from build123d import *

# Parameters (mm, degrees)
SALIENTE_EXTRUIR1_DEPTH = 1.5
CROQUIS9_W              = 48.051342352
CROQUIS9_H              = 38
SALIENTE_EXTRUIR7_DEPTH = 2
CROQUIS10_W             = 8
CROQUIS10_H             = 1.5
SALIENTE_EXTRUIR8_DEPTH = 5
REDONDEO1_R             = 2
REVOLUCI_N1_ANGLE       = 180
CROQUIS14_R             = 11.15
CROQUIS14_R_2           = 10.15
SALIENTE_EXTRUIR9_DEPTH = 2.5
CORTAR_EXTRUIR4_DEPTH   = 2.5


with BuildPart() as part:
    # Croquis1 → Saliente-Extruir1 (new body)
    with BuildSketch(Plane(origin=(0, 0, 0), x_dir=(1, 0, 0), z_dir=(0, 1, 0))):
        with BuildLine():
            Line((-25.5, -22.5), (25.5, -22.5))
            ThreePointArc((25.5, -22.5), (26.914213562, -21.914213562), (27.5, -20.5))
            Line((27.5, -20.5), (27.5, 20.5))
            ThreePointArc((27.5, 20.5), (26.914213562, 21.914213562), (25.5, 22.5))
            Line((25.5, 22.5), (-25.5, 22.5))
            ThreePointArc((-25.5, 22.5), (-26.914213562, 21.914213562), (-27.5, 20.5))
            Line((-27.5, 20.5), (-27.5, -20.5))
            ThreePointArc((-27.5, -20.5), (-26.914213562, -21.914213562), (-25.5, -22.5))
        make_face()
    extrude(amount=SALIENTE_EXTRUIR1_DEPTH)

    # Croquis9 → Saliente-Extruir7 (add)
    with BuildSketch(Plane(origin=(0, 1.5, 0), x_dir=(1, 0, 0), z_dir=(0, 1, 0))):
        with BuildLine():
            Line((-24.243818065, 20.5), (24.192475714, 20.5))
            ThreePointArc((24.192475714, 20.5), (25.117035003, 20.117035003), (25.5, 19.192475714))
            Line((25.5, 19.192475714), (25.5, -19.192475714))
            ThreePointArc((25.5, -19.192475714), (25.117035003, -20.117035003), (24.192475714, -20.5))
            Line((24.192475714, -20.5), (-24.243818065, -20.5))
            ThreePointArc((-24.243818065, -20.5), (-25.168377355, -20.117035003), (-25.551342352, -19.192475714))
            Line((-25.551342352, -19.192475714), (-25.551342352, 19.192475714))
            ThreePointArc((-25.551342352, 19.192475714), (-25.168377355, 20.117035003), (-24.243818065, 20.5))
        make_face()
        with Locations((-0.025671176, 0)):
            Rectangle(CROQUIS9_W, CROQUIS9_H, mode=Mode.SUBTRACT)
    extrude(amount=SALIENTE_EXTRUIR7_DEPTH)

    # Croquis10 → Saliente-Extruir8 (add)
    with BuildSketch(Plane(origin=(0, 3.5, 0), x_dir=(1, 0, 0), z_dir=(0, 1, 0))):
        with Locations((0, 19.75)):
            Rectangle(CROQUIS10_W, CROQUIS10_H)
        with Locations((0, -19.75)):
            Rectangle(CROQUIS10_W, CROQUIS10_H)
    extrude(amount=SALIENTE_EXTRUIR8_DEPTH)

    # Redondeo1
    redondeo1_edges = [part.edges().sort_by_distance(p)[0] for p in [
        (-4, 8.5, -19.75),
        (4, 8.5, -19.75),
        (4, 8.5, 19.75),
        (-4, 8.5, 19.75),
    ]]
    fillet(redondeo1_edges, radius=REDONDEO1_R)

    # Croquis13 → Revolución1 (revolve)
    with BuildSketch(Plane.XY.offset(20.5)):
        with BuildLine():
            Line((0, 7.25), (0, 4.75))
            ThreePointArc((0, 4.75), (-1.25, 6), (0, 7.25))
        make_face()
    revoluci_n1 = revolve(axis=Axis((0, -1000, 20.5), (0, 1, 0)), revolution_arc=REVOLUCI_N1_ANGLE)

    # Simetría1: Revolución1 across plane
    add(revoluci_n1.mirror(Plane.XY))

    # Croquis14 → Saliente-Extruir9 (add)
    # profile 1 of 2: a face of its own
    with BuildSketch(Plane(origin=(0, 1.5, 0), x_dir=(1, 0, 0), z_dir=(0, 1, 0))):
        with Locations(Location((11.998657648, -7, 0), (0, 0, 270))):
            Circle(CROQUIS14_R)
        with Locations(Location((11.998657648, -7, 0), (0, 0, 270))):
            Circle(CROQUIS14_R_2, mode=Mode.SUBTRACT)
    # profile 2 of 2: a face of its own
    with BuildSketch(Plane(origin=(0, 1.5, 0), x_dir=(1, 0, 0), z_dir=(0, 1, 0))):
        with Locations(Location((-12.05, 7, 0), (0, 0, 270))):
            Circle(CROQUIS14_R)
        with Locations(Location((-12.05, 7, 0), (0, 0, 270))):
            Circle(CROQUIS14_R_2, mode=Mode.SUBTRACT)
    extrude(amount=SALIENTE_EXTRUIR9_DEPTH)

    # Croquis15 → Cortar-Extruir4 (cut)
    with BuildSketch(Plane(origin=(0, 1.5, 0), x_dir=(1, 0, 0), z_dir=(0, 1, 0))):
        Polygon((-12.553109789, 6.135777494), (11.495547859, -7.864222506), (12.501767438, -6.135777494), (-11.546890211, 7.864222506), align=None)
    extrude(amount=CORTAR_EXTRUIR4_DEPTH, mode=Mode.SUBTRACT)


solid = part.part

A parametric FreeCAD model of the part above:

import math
import FreeCAD as App
import Part
import Sketcher
from FreeCAD import Vector
Q = App.Units.Quantity


def edges_at(feature, points):
    """Names of the edges that pass closest to the given points."""
    edges = feature.Shape.Edges
    near = lambda p: min(range(len(edges)), key=lambda i: edges[i].distToShape(Part.Vertex(*p))[0])
    return sorted({f"Edge{near(p) + 1}" for p in points})

doc = App.newDocument("Part")
body = doc.addObject("PartDesign::Body", "Body")

# Sketch on XZ plane
sketch1 = body.newObject("Sketcher::SketchObject", "Sketch")
sketch1.AttachmentSupport = (doc.getObject("XZ_Plane"), [""])
sketch1.MapMode = "FlatFace"
sketch1.addGeometry([
    Part.LineSegment(Vector(-25.5, 22.5, 0), Vector(25.5, 22.5, 0)),  # 0
    Part.ArcOfCircle(Part.Circle(Vector(25.5, 20.5, 0), Vector(0, 0, 1), 2), math.radians(0), math.radians(90)),  # 1
    Part.LineSegment(Vector(27.5, 20.5, 0), Vector(27.5, -20.5, 0)),  # 2
    Part.ArcOfCircle(Part.Circle(Vector(25.5, -20.5, 0), Vector(0, 0, 1), 2), math.radians(-90), math.radians(0)),  # 3
    Part.LineSegment(Vector(25.5, -22.5, 0), Vector(-25.5, -22.5, 0)),  # 4
    Part.ArcOfCircle(Part.Circle(Vector(-25.5, -20.5, 0), Vector(0, 0, 1), 2), math.radians(-180), math.radians(-90)),  # 5
    Part.LineSegment(Vector(-27.5, -20.5, 0), Vector(-27.5, 20.5, 0)),  # 6
    Part.ArcOfCircle(Part.Circle(Vector(-25.5, 20.5, 0), Vector(0, 0, 1), 2), math.radians(90), math.radians(180)),  # 7
], False)
sketch1.addConstraint([
    Sketcher.Constraint("Tangent", 0, 2, 1, 2),
    Sketcher.Constraint("Tangent", 1, 1, 2, 1),
    Sketcher.Constraint("Tangent", 2, 2, 3, 2),
    Sketcher.Constraint("Tangent", 3, 1, 4, 1),
    Sketcher.Constraint("Tangent", 4, 2, 5, 2),
    Sketcher.Constraint("Tangent", 5, 1, 6, 1),
    Sketcher.Constraint("Tangent", 6, 2, 7, 2),
    Sketcher.Constraint("Tangent", 7, 1, 0, 1),
    Sketcher.Constraint("Horizontal", 0),
    Sketcher.Constraint("Vertical", 2),
    Sketcher.Constraint("Horizontal", 4),
    Sketcher.Constraint("Vertical", 6),
    Sketcher.Constraint("Equal", 1, 3),
    Sketcher.Constraint("Equal", 3, 5),
    Sketcher.Constraint("Equal", 5, 7),
    Sketcher.Constraint("Symmetric", 1, 3, 5, 3, -1, 1),
    Sketcher.Constraint("Radius", 1, Q("2 mm")),
    Sketcher.Constraint("DistanceX", 0, 1, 0, 2, Q("51 mm")),
    Sketcher.Constraint("DistanceY", 2, 2, 2, 1, Q("41 mm")),
])
pad1 = body.newObject("PartDesign::Pad", "Pad")
pad1.Profile = sketch1
pad1.Length = 1.5
pad1.Reversed = True

# Sketch on XZ plane
sketch2 = body.newObject("Sketcher::SketchObject", "Sketch001")
sketch2.AttachmentSupport = (doc.getObject("XZ_Plane"), [""])
sketch2.MapMode = "FlatFace"
sketch2.AttachmentOffset = App.Placement(Vector(0, 0, -1.5), App.Rotation())
sketch2.addGeometry([
    Part.LineSegment(Vector(24.2, -20.5, 0), Vector(-24.2, -20.5, 0)),  # 0
    Part.ArcOfCircle(Part.Circle(Vector(-24.2, -19.2, 0), Vector(0, 0, 1), 1.3), math.radians(-180), math.radians(-90)),  # 1
    Part.LineSegment(Vector(-25.6, -19.2, 0), Vector(-25.6, 19.2, 0)),  # 2
    Part.ArcOfCircle(Part.Circle(Vector(-24.2, 19.2, 0), Vector(0, 0, 1), 1.3), math.radians(90), math.radians(180)),  # 3
    Part.LineSegment(Vector(-24.2, 20.5, 0), Vector(24.2, 20.5, 0)),  # 4
    Part.ArcOfCircle(Part.Circle(Vector(24.2, 19.2, 0), Vector(0, 0, 1), 1.3), math.radians(0), math.radians(90)),  # 5
    Part.LineSegment(Vector(25.5, 19.2, 0), Vector(25.5, -19.2, 0)),  # 6
    Part.ArcOfCircle(Part.Circle(Vector(24.2, -19.2, 0), Vector(0, 0, 1), 1.3), math.radians(-90), math.radians(0)),  # 7
    Part.LineSegment(Vector(-24.1, 19, 0), Vector(-24.1, -19, 0)),  # 8
    Part.LineSegment(Vector(-24.1, -19, 0), Vector(24, -19, 0)),  # 9
    Part.LineSegment(Vector(24, -19, 0), Vector(24, 19, 0)),  # 10
    Part.LineSegment(Vector(24, 19, 0), Vector(-24.1, 19, 0)),  # 11
], False)
sketch2.addConstraint([
    Sketcher.Constraint("Tangent", 0, 2, 1, 2),
    Sketcher.Constraint("Tangent", 1, 1, 2, 1),
    Sketcher.Constraint("Tangent", 2, 2, 3, 2),
    Sketcher.Constraint("Tangent", 3, 1, 4, 1),
    Sketcher.Constraint("Tangent", 4, 2, 5, 2),
    Sketcher.Constraint("Tangent", 5, 1, 6, 1),
    Sketcher.Constraint("Tangent", 6, 2, 7, 2),
    Sketcher.Constraint("Tangent", 7, 1, 0, 1),
    Sketcher.Constraint("Coincident", 8, 2, 9, 1),
    Sketcher.Constraint("Coincident", 9, 2, 10, 1),
    Sketcher.Constraint("Coincident", 10, 2, 11, 1),
    Sketcher.Constraint("Coincident", 11, 2, 8, 1),
    Sketcher.Constraint("Horizontal", 0),
    Sketcher.Constraint("Vertical", 2),
    Sketcher.Constraint("Horizontal", 4),
    Sketcher.Constraint("Vertical", 6),
    Sketcher.Constraint("Vertical", 8),
    Sketcher.Constraint("Horizontal", 9),
    Sketcher.Constraint("Vertical", 10),
    Sketcher.Constraint("Horizontal", 11),
    Sketcher.Constraint("Equal", 1, 3),
    Sketcher.Constraint("Equal", 3, 5),
    Sketcher.Constraint("Equal", 5, 7),
    Sketcher.Constraint("DistanceY", 8, 2, 8, 1, Q("38 mm")),
    Sketcher.Constraint("DistanceY", 8, 2, -1, 1, Q("19 mm")),
    Sketcher.Constraint("DistanceX", -1, 1, 9, 2, Q("24 mm")),
    Sketcher.Constraint("DistanceY", 0, 2, 3, 1, Q("41 mm")),
    Sketcher.Constraint("DistanceY", 0, 2, -1, 1, Q("20.5 mm")),
    Sketcher.Constraint("DistanceX", -1, 1, 5, 1, Q("25.5 mm")),
    Sketcher.Constraint("DistanceX", 1, 1, 8, 2, Q("1.5 mm")),
    Sketcher.Constraint("Radius", 1, Q("1.307524 mm")),
    Sketcher.Constraint("DistanceX", 0, 2, 0, 1, Q("48.436294 mm")),
])
pad2 = body.newObject("PartDesign::Pad", "Pad001")
pad2.Profile = sketch2
pad2.Length = 2
pad2.Reversed = True

# Sketch on XZ plane
sketch3 = body.newObject("Sketcher::SketchObject", "Sketch002")
sketch3.AttachmentSupport = (doc.getObject("XZ_Plane"), [""])
sketch3.MapMode = "FlatFace"
sketch3.AttachmentOffset = App.Placement(Vector(0, 0, -3.5), App.Rotation())
sketch3.addGeometry([
    Part.LineSegment(Vector(-4, -20.5, 0), Vector(-4, -19, 0)),  # 0
    Part.LineSegment(Vector(-4, -19, 0), Vector(4, -19, 0)),  # 1
    Part.LineSegment(Vector(4, -19, 0), Vector(4, -20.5, 0)),  # 2
    Part.LineSegment(Vector(4, -20.5, 0), Vector(-4, -20.5, 0)),  # 3
    Part.LineSegment(Vector(-4, 19, 0), Vector(-4, 20.5, 0)),  # 4
    Part.LineSegment(Vector(-4, 20.5, 0), Vector(4, 20.5, 0)),  # 5
    Part.LineSegment(Vector(4, 20.5, 0), Vector(4, 19, 0)),  # 6
    Part.LineSegment(Vector(4, 19, 0), Vector(-4, 19, 0)),  # 7
], False)
sketch3.addConstraint([
    Sketcher.Constraint("Coincident", 0, 2, 1, 1),
    Sketcher.Constraint("Coincident", 1, 2, 2, 1),
    Sketcher.Constraint("Coincident", 2, 2, 3, 1),
    Sketcher.Constraint("Coincident", 3, 2, 0, 1),
    Sketcher.Constraint("Coincident", 4, 2, 5, 1),
    Sketcher.Constraint("Coincident", 5, 2, 6, 1),
    Sketcher.Constraint("Coincident", 6, 2, 7, 1),
    Sketcher.Constraint("Coincident", 7, 2, 4, 1),
    Sketcher.Constraint("Vertical", 0),
    Sketcher.Constraint("Horizontal", 1),
    Sketcher.Constraint("Vertical", 2),
    Sketcher.Constraint("Horizontal", 3),
    Sketcher.Constraint("Vertical", 4),
    Sketcher.Constraint("Horizontal", 5),
    Sketcher.Constraint("Vertical", 6),
    Sketcher.Constraint("Horizontal", 7),
    Sketcher.Constraint("Symmetric", 2, 2, 4, 2, -1, 1),
    Sketcher.Constraint("Symmetric", 0, 2, 6, 2, -1, 1),
    Sketcher.Constraint("Vertical", 3, 2, 4, 2),
    Sketcher.Constraint("DistanceX", 1, 1, 1, 2, Q("8 mm")),
    Sketcher.Constraint("DistanceY", 0, 1, 0, 2, Q("1.5 mm")),
    Sketcher.Constraint("DistanceY", 0, 2, -1, 1, Q("19 mm")),
])
pad3 = body.newObject("PartDesign::Pad", "Pad002")
pad3.Profile = sketch3
pad3.Length = 5
pad3.Reversed = True
doc.recompute()

fillet = body.newObject("PartDesign::Fillet", "Fillet")
fillet.Base = (pad3, edges_at(pad3, [
    (-4, 8.5, -19.75),
    (4, 8.5, -19.75),
    (4, 8.5, 19.75),
    (-4, 8.5, 19.75),
]))
fillet.Radius = 2

# Sketch on XY plane
sketch4 = body.newObject("Sketcher::SketchObject", "Sketch003")
sketch4.AttachmentSupport = (doc.getObject("XY_Plane"), [""])
sketch4.MapMode = "FlatFace"
sketch4.AttachmentOffset = App.Placement(Vector(0, 0, 20.5), App.Rotation())
sketch4.addGeometry([
    Part.LineSegment(Vector(0, 4.8, 0), Vector(0, 7.2, 0)),
    Part.ArcOfCircle(Part.Circle(Vector(0, 6, 0), Vector(0, 0, 1), 1.2), math.radians(90), math.radians(270)),
], False)
sketch4.addConstraint([
    Sketcher.Constraint("Coincident", 0, 1, 1, 2),
    Sketcher.Constraint("Coincident", 1, 1, 0, 2),
    Sketcher.Constraint("Vertical", 0),
    Sketcher.Constraint("PointOnObject", 1, 3, -2),
    Sketcher.Constraint("PointOnObject", 0, 1, -2),
    Sketcher.Constraint("Radius", 1, Q("1.25 mm")),
    Sketcher.Constraint("DistanceY", -1, 1, 1, 3, Q("6 mm")),
])
revolution = body.newObject("PartDesign::Revolution", "Revolution")
revolution.Profile = sketch4
revolution.ReferenceAxis = (sketch4, ["V_Axis"])
revolution.Angle = 180
doc.recompute()

mirrored = body.newObject("PartDesign::Mirrored", "Mirrored")
mirrored.Originals = [revolution]
mirrored.MirrorPlane = (doc.getObject("XY_Plane"), [""])
body.Tip = mirrored

# Sketch on XZ plane
sketch5 = body.newObject("Sketcher::SketchObject", "Sketch004")
sketch5.AttachmentSupport = (doc.getObject("XZ_Plane"), [""])
sketch5.MapMode = "FlatFace"
sketch5.AttachmentOffset = App.Placement(Vector(0, 0, -1.5), App.Rotation())
sketch5.addGeometry([
    Part.Circle(Vector(12, 7, 0), Vector(0, 0, 1), 11),
    Part.Circle(Vector(12, 7, 0), Vector(0, 0, 1), 10),
    Part.Circle(Vector(-12, -7, 0), Vector(0, 0, 1), 11),
    Part.Circle(Vector(-12, -7, 0), Vector(0, 0, 1), 10),
], False)
sketch5.addConstraint([
    Sketcher.Constraint("Coincident", 1, 3, 0, 3),
    Sketcher.Constraint("Coincident", 3, 3, 2, 3),
    Sketcher.Constraint("Equal", 0, 2),
    Sketcher.Constraint("Equal", 1, 3),
    Sketcher.Constraint("Diameter", 0, Q("22.3 mm")),
    Sketcher.Constraint("Diameter", 1, Q("20.3 mm")),
    Sketcher.Constraint("DistanceY", -1, 1, 0, 3, Q("7 mm")),
    Sketcher.Constraint("DistanceY", 2, 3, -1, 1, Q("7 mm")),
    Sketcher.Constraint("DistanceX", 2, 3, -1, 1, Q("12.05 mm")),
    Sketcher.Constraint("DistanceX", -1, 1, 0, 3, Q("11.998658 mm")),
])
pad4 = body.newObject("PartDesign::Pad", "Pad003")
pad4.Profile = sketch5
pad4.Length = 2.5
pad4.Reversed = True

# Sketch on XZ plane
sketch6 = body.newObject("Sketcher::SketchObject", "Sketch005")
sketch6.AttachmentSupport = (doc.getObject("XZ_Plane"), [""])
sketch6.MapMode = "FlatFace"
sketch6.AttachmentOffset = App.Placement(Vector(0, 0, -1.5), App.Rotation())
sketch6.addGeometry([
    Part.LineSegment(Vector(-12.6, -6.1, 0), Vector(11.5, 7.9, 0)),
    Part.LineSegment(Vector(11.5, 7.9, 0), Vector(12.5, 6.1, 0)),
    Part.LineSegment(Vector(12.5, 6.1, 0), Vector(-11.5, -7.9, 0)),
    Part.LineSegment(Vector(-11.5, -7.9, 0), Vector(-12.6, -6.1, 0)),
], False)
sketch6.addConstraint([
    Sketcher.Constraint("Coincident", 0, 2, 1, 1),
    Sketcher.Constraint("Coincident", 1, 2, 2, 1),
    Sketcher.Constraint("Coincident", 2, 2, 3, 1),
    Sketcher.Constraint("Coincident", 3, 2, 0, 1),
    Sketcher.Constraint("Perpendicular", 0, 1),
    Sketcher.Constraint("Perpendicular", 1, 2),
    Sketcher.Constraint("Perpendicular", 2, 3),
    Sketcher.Constraint("Distance", 1, Q("2 mm")),
    Sketcher.Constraint("DistanceY", 2, 2, 1, 2, Q("14 mm")),
    Sketcher.Constraint("Distance", 0, Q("27.826928 mm")),
    Sketcher.Constraint("DistanceX", 2, 2, -1, 1, Q("11.54689 mm")),
    Sketcher.Constraint("DistanceY", -1, 1, 0, 2, Q("7.864223 mm")),
])
pocket1 = body.newObject("PartDesign::Pocket", "Pocket")
pocket1.Profile = sketch6
pocket1.Length = 2.5

doc.recompute()
